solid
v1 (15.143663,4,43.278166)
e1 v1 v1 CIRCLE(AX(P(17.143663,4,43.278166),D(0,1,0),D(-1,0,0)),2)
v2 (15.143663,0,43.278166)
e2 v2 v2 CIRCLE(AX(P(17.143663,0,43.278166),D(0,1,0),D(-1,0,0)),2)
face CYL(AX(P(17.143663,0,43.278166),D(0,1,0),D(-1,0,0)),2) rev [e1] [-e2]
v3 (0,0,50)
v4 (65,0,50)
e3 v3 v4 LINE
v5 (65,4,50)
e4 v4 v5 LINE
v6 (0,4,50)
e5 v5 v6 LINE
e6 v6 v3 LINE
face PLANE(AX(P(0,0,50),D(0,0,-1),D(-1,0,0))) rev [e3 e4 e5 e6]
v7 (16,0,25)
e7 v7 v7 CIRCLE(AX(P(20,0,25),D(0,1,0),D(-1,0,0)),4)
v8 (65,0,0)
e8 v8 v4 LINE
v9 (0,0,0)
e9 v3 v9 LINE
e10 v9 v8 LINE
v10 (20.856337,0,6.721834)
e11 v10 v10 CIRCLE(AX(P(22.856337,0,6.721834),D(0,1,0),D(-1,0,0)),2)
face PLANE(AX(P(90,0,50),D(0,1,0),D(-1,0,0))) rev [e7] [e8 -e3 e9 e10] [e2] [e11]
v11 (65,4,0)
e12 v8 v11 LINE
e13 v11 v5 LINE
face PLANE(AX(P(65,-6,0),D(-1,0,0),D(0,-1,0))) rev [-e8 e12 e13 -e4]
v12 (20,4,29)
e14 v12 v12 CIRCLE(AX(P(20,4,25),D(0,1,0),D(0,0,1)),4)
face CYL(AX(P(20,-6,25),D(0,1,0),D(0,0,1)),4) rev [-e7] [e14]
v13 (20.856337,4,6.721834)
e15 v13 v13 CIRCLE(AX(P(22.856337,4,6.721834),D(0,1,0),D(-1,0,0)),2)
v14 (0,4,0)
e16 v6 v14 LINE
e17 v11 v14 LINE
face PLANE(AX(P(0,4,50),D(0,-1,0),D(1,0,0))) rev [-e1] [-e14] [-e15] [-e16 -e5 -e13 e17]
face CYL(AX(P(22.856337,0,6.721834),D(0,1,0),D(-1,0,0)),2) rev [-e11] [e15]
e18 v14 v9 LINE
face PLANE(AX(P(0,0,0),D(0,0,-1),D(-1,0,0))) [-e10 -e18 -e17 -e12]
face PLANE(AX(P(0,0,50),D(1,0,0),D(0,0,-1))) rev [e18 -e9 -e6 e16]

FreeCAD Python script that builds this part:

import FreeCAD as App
import Part
import Sketcher

V = App.Vector
Q = App.Units.Quantity

doc = App.newDocument("Part")
params = doc.addObject("Spreadsheet::Sheet", "Params")
for row, (alias, value) in enumerate([
    ("sketch1_width", "90 mm"),
    ("sketch1_height", "4 mm"),
    ("pad1_length", "50 mm"),
    ("sketch2_diameter", "8 mm"),
    ("pocket1_length", "10 mm"),
    ("sketch3_width", "25 mm"),
    ("sketch3_height", "50 mm"),
    ("pocket2_length", "10 mm"),
    ("sketch4_diameter", "4 mm"),
], start=1):
    params.set(f"A{row}", alias)
    params.set(f"B{row}", "=" + value)
    params.setAlias(f"B{row}", alias)

body = doc.addObject("PartDesign::Body", "Body")

# Sketch on XY plane
sketch1 = body.newObject("Sketcher::SketchObject", "Sketch")
sketch1.AttachmentSupport = (doc.getObject("XY_Plane"), [""])
sketch1.MapMode = "FlatFace"
sketch1.addGeometry([
    Part.LineSegment(V(90, 4, 0), V(0, 4, 0)),
    Part.LineSegment(V(0, 4, 0), V(0, 0, 0)),
    Part.LineSegment(V(0, 0, 0), V(90, 0, 0)),
    Part.LineSegment(V(90, 0, 0), V(90, 4, 0)),
], False)
sketch1.addConstraint([
    Sketcher.Constraint("Coincident", 0, 2, 1, 1),
    Sketcher.Constraint("Coincident", 1, 2, 2, 1),
    Sketcher.Constraint("Coincident", 2, 2, 3, 1),
    Sketcher.Constraint("Coincident", 3, 2, 0, 1),
    Sketcher.Constraint("Horizontal", 0),
    Sketcher.Constraint("Vertical", 1),
    Sketcher.Constraint("Horizontal", 2),
    Sketcher.Constraint("Vertical", 3),
    Sketcher.Constraint("Coincident", 1, 2, -1, 1),
    Sketcher.Constraint("DistanceX", 0, 2, 0, 1, Q("90 mm")),
    Sketcher.Constraint("DistanceY", 1, 2, 1, 1, Q("4 mm")),
])
sketch1.setExpression("Constraints[9]", "Params.sketch1_width")
sketch1.setExpression("Constraints[10]", "Params.sketch1_height")
pad1 = body.newObject("PartDesign::Pad", "Pad")
pad1.Profile = sketch1
pad1.setExpression("Length", "Params.pad1_length")

# Sketch on XZ plane
sketch2 = body.newObject("Sketcher::SketchObject", "Sketch001")
sketch2.AttachmentSupport = (doc.getObject("XZ_Plane"), [""])
sketch2.MapMode = "FlatFace"
sketch2.AttachmentOffset = App.Placement(V(0, 0, -4), App.Rotation())
sketch2.addGeometry(Part.Circle(V(20, 25, 0), V(0, 0, 1), 4), False)
sketch2.addConstraint([
    Sketcher.Constraint("Diameter", 0, Q("8 mm")),
    Sketcher.Constraint("DistanceX", -1, 1, 0, 3, Q("20 mm")),
    Sketcher.Constraint("DistanceY", -1, 1, 0, 3, Q("25 mm")),
])
sketch2.setExpression("Constraints[0]", "Params.sketch2_diameter")
pocket1 = body.newObject("PartDesign::Pocket", "Pocket")
pocket1.Profile = sketch2
pocket1.setExpression("Length", "Params.pocket1_length")
pocket1.Reversed = True

# Sketch on XZ plane
sketch3 = body.newObject("Sketcher::SketchObject", "Sketch002")
sketch3.AttachmentSupport = (doc.getObject("XZ_Plane"), [""])
sketch3.MapMode = "FlatFace"
sketch3.AttachmentOffset = App.Placement(V(0, 0, -4), App.Rotation())
sketch3.addGeometry([
    Part.LineSegment(V(65, 0, 0), V(65, 50, 0)),
    Part.LineSegment(V(65, 50, 0), V(90, 50, 0)),
    Part.LineSegment(V(90, 50, 0), V(90, 0, 0)),
    Part.LineSegment(V(90, 0, 0), V(65, 0, 0)),
], False)
sketch3.addConstraint([
    Sketcher.Constraint("Coincident", 0, 2, 1, 1),
    Sketcher.Constraint("Coincident", 1, 2, 2, 1),
    Sketcher.Constraint("Coincident", 2, 2, 3, 1),
    Sketcher.Constraint("Coincident", 3, 2, 0, 1),
    Sketcher.Constraint("Vertical", 0),
    Sketcher.Constraint("Horizontal", 1),
    Sketcher.Constraint("Vertical", 2),
    Sketcher.Constraint("Horizontal", 3),
    Sketcher.Constraint("PointOnObject", 2, 2, -1),
    Sketcher.Constraint("DistanceX", 1, 1, 1, 2, Q("25 mm")),
    Sketcher.Constraint("DistanceY", 0, 1, 0, 2, Q("50 mm")),
    Sketcher.Constraint("DistanceX", -1, 1, 0, 2, Q("65 mm")),
])
sketch3.setExpression("Constraints[9]", "Params.sketch3_width")
sketch3.setExpression("Constraints[10]", "Params.sketch3_height")
pocket2 = body.newObject("PartDesign::Pocket", "Pocket001")
pocket2.Profile = sketch3
pocket2.setExpression("Length", "Params.pocket2_length")
pocket2.Reversed = True

# Sketch on XZ plane
sketch4 = body.newObject("Sketcher::SketchObject", "Sketch003")
sketch4.AttachmentSupport = (doc.getObject("XZ_Plane"), [""])
sketch4.MapMode = "FlatFace"
sketch4.AttachmentOffset = App.Placement(V(0, 0, -4), App.Rotation())
sketch4.addGeometry([
    Part.Circle(V(17.143663, 43.278166, 0), V(0, 0, 1), 2),
    Part.Circle(V(22.856337, 6.721834, 0), V(0, 0, 1), 2),
], False)
sketch4.addConstraint([
    Sketcher.Constraint("Equal", 0, 1),
    Sketcher.Constraint("Diameter", 0, Q("4 mm")),
    Sketcher.Constraint("DistanceY", 1, 3, 0, 3, Q("36.556331 mm")),
    Sketcher.Constraint("DistanceX", -1, 1, 0, 3, Q("17.143663 mm")),
    Sketcher.Constraint("DistanceY", -1, 1, 0, 3, Q("43.278166 mm")),
    Sketcher.Constraint("DistanceX", -1, 1, 1, 3, Q("22.856337 mm")),
])
sketch4.setExpression("Constraints[1]", "Params.sketch4_diameter")
pocket3 = body.newObject("PartDesign::Pocket", "Pocket002")
pocket3.Profile = sketch4
pocket3.Type = "ThroughAll"
pocket3.Reversed = True

doc.recompute()
